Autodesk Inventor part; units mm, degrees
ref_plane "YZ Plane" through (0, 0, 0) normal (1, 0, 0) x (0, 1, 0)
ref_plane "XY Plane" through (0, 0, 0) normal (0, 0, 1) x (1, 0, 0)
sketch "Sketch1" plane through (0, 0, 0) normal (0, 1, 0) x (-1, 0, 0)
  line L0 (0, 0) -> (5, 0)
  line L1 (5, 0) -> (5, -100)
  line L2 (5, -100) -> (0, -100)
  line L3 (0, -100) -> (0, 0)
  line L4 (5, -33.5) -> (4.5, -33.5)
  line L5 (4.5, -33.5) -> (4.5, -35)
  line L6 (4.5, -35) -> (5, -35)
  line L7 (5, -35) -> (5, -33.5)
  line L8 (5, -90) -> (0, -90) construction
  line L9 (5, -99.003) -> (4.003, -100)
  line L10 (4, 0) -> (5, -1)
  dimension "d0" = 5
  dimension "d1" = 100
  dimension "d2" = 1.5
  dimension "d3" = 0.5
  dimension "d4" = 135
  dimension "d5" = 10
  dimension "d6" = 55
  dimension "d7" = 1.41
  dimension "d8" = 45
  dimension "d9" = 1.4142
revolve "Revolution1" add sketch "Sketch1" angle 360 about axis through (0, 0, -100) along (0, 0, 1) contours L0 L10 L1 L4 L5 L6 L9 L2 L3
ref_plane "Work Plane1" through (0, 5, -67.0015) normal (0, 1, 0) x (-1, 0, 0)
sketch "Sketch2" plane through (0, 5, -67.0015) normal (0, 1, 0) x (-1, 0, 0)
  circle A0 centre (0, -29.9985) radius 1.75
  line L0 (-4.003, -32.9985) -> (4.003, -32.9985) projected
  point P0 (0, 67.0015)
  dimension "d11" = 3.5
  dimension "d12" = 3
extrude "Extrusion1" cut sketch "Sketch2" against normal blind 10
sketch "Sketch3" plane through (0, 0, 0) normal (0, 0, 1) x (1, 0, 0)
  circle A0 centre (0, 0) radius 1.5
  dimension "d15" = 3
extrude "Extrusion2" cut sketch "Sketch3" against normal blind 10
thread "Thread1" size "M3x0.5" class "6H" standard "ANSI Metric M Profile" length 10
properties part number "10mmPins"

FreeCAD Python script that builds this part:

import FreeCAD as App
import Part
import Sketcher
from FreeCAD import Vector
Q = App.Units.Quantity

doc = App.newDocument("Part")
body = doc.addObject("PartDesign::Body", "Body")

# Sketch on XZ plane
sketch1 = doc.addObject("Sketcher::SketchObject", "Sketch")
body.addObject(sketch1)
sketch1.AttachmentSupport = (doc.XZ_Plane, [""])
sketch1.MapMode = "FlatFace"
sketch1.addGeometry(Part.LineSegment(Vector(-4, 0, 0), Vector(0, 0, 0)), False)
sketch1.addGeometry(Part.LineSegment(Vector(0, 0, 0), Vector(0, -100, 0)), False)
sketch1.addGeometry(Part.LineSegment(Vector(0, -100, 0), Vector(-4, -100, 0)), False)
sketch1.addGeometry(Part.LineSegment(Vector(-4, -100, 0), Vector(-5, -99, 0)), False)
sketch1.addGeometry(Part.LineSegment(Vector(-5, -99, 0), Vector(-5, -35, 0)), False)
sketch1.addGeometry(Part.LineSegment(Vector(-5, -35, 0), Vector(-4.5, -35, 0)), False)
sketch1.addGeometry(Part.LineSegment(Vector(-4.5, -35, 0), Vector(-4.5, -33.5, 0)), False)
sketch1.addGeometry(Part.LineSegment(Vector(-4.5, -33.5, 0), Vector(-5, -33.5, 0)), False)
sketch1.addGeometry(Part.LineSegment(Vector(-5, -33.5, 0), Vector(-5, -1, 0)), False)
sketch1.addGeometry(Part.LineSegment(Vector(-5, -1, 0), Vector(-4, 0, 0)), False)
sketch1.addConstraint(Sketcher.Constraint("Coincident", 0, 2, 1, 1))
sketch1.addConstraint(Sketcher.Constraint("Coincident", 1, 2, 2, 1))
sketch1.addConstraint(Sketcher.Constraint("Coincident", 2, 2, 3, 1))
sketch1.addConstraint(Sketcher.Constraint("Coincident", 3, 2, 4, 1))
sketch1.addConstraint(Sketcher.Constraint("Coincident", 4, 2, 5, 1))
sketch1.addConstraint(Sketcher.Constraint("Coincident", 5, 2, 6, 1))
sketch1.addConstraint(Sketcher.Constraint("Coincident", 6, 2, 7, 1))
sketch1.addConstraint(Sketcher.Constraint("Coincident", 7, 2, 8, 1))
sketch1.addConstraint(Sketcher.Constraint("Coincident", 8, 2, 9, 1))
sketch1.addConstraint(Sketcher.Constraint("Coincident", 9, 2, 0, 1))
sketch1.addConstraint(Sketcher.Constraint("Horizontal", 0))
sketch1.addConstraint(Sketcher.Constraint("Vertical", 1))
sketch1.addConstraint(Sketcher.Constraint("Horizontal", 2))
sketch1.addConstraint(Sketcher.Constraint("Vertical", 4))
sketch1.addConstraint(Sketcher.Constraint("Horizontal", 5))
sketch1.addConstraint(Sketcher.Constraint("Vertical", 6))
sketch1.addConstraint(Sketcher.Constraint("Horizontal", 7))
sketch1.addConstraint(Sketcher.Constraint("Vertical", 8))
sketch1.addConstraint(Sketcher.Constraint("Coincident", 0, 2, -1, 1))
sketch1.addConstraint(Sketcher.Constraint("Perpendicular", 3, 9))
sketch1.addConstraint(Sketcher.Constraint("Vertical", 4, 2, 7, 2))
sketch1.addConstraint(Sketcher.Constraint("DistanceY", 1, 2, 1, 1, 100.0))
sketch1.addConstraint(Sketcher.Constraint("Angle", 3, Q("135 deg")))
sketch1.addConstraint(Sketcher.Constraint("DistanceX", 5, 1, 5, 2, 0.5))
sketch1.addConstraint(Sketcher.Constraint("DistanceY", 6, 1, 6, 2, 1.5))
sketch1.addConstraint(Sketcher.Constraint("DistanceX", 3, 2, -1, 1, 5.0))
sketch1.addConstraint(Sketcher.Constraint("DistanceX", 6, 2, 9, 2, 0.5))
sketch1.addConstraint(Sketcher.Constraint("Distance", 3, 1.41))
sketch1.addConstraint(Sketcher.Constraint("DistanceY", 8, 1, 8, 2, 32.5))
revolution = doc.addObject("PartDesign::Revolution", "Revolution")
body.addObject(revolution)
revolution.Profile = sketch1
revolution.ReferenceAxis = (sketch1, ["V_Axis"])
revolution.Angle = 360

# Sketch on XZ plane
sketch2 = doc.addObject("Sketcher::SketchObject", "Sketch001")
body.addObject(sketch2)
sketch2.AttachmentSupport = (doc.XZ_Plane, [""])
sketch2.MapMode = "FlatFace"
sketch2.AttachmentOffset = App.Placement(Vector(0, 0, -5), App.Rotation())
sketch2.addGeometry(Part.Circle(Vector(0, -97, 0), Vector(0, 0, 1), 1.8), False)
sketch2.addConstraint(Sketcher.Constraint("PointOnObject", 0, 3, -2))
sketch2.addConstraint(Sketcher.Constraint("Diameter", 0, 3.5))
sketch2.addConstraint(Sketcher.Constraint("DistanceY", 0, 3, -1, 1, 97.0))
pocket1 = doc.addObject("PartDesign::Pocket", "Pocket")
body.addObject(pocket1)
pocket1.Profile = sketch2
pocket1.Length = 10
pocket1.Reversed = True

# Sketch on XY plane
sketch3 = doc.addObject("Sketcher::SketchObject", "Sketch002")
body.addObject(sketch3)
sketch3.AttachmentSupport = (doc.XY_Plane, [""])
sketch3.MapMode = "FlatFace"
sketch3.addGeometry(Part.Circle(Vector(0, 0, 0), Vector(0, 0, 1), 1.5), False)
sketch3.addConstraint(Sketcher.Constraint("Coincident", 0, 3, -1, 1))
sketch3.addConstraint(Sketcher.Constraint("Diameter", 0, 3.0))
pocket2 = doc.addObject("PartDesign::Pocket", "Pocket001")
body.addObject(pocket2)
pocket2.Profile = sketch3
pocket2.Length = 10

doc.recompute()
